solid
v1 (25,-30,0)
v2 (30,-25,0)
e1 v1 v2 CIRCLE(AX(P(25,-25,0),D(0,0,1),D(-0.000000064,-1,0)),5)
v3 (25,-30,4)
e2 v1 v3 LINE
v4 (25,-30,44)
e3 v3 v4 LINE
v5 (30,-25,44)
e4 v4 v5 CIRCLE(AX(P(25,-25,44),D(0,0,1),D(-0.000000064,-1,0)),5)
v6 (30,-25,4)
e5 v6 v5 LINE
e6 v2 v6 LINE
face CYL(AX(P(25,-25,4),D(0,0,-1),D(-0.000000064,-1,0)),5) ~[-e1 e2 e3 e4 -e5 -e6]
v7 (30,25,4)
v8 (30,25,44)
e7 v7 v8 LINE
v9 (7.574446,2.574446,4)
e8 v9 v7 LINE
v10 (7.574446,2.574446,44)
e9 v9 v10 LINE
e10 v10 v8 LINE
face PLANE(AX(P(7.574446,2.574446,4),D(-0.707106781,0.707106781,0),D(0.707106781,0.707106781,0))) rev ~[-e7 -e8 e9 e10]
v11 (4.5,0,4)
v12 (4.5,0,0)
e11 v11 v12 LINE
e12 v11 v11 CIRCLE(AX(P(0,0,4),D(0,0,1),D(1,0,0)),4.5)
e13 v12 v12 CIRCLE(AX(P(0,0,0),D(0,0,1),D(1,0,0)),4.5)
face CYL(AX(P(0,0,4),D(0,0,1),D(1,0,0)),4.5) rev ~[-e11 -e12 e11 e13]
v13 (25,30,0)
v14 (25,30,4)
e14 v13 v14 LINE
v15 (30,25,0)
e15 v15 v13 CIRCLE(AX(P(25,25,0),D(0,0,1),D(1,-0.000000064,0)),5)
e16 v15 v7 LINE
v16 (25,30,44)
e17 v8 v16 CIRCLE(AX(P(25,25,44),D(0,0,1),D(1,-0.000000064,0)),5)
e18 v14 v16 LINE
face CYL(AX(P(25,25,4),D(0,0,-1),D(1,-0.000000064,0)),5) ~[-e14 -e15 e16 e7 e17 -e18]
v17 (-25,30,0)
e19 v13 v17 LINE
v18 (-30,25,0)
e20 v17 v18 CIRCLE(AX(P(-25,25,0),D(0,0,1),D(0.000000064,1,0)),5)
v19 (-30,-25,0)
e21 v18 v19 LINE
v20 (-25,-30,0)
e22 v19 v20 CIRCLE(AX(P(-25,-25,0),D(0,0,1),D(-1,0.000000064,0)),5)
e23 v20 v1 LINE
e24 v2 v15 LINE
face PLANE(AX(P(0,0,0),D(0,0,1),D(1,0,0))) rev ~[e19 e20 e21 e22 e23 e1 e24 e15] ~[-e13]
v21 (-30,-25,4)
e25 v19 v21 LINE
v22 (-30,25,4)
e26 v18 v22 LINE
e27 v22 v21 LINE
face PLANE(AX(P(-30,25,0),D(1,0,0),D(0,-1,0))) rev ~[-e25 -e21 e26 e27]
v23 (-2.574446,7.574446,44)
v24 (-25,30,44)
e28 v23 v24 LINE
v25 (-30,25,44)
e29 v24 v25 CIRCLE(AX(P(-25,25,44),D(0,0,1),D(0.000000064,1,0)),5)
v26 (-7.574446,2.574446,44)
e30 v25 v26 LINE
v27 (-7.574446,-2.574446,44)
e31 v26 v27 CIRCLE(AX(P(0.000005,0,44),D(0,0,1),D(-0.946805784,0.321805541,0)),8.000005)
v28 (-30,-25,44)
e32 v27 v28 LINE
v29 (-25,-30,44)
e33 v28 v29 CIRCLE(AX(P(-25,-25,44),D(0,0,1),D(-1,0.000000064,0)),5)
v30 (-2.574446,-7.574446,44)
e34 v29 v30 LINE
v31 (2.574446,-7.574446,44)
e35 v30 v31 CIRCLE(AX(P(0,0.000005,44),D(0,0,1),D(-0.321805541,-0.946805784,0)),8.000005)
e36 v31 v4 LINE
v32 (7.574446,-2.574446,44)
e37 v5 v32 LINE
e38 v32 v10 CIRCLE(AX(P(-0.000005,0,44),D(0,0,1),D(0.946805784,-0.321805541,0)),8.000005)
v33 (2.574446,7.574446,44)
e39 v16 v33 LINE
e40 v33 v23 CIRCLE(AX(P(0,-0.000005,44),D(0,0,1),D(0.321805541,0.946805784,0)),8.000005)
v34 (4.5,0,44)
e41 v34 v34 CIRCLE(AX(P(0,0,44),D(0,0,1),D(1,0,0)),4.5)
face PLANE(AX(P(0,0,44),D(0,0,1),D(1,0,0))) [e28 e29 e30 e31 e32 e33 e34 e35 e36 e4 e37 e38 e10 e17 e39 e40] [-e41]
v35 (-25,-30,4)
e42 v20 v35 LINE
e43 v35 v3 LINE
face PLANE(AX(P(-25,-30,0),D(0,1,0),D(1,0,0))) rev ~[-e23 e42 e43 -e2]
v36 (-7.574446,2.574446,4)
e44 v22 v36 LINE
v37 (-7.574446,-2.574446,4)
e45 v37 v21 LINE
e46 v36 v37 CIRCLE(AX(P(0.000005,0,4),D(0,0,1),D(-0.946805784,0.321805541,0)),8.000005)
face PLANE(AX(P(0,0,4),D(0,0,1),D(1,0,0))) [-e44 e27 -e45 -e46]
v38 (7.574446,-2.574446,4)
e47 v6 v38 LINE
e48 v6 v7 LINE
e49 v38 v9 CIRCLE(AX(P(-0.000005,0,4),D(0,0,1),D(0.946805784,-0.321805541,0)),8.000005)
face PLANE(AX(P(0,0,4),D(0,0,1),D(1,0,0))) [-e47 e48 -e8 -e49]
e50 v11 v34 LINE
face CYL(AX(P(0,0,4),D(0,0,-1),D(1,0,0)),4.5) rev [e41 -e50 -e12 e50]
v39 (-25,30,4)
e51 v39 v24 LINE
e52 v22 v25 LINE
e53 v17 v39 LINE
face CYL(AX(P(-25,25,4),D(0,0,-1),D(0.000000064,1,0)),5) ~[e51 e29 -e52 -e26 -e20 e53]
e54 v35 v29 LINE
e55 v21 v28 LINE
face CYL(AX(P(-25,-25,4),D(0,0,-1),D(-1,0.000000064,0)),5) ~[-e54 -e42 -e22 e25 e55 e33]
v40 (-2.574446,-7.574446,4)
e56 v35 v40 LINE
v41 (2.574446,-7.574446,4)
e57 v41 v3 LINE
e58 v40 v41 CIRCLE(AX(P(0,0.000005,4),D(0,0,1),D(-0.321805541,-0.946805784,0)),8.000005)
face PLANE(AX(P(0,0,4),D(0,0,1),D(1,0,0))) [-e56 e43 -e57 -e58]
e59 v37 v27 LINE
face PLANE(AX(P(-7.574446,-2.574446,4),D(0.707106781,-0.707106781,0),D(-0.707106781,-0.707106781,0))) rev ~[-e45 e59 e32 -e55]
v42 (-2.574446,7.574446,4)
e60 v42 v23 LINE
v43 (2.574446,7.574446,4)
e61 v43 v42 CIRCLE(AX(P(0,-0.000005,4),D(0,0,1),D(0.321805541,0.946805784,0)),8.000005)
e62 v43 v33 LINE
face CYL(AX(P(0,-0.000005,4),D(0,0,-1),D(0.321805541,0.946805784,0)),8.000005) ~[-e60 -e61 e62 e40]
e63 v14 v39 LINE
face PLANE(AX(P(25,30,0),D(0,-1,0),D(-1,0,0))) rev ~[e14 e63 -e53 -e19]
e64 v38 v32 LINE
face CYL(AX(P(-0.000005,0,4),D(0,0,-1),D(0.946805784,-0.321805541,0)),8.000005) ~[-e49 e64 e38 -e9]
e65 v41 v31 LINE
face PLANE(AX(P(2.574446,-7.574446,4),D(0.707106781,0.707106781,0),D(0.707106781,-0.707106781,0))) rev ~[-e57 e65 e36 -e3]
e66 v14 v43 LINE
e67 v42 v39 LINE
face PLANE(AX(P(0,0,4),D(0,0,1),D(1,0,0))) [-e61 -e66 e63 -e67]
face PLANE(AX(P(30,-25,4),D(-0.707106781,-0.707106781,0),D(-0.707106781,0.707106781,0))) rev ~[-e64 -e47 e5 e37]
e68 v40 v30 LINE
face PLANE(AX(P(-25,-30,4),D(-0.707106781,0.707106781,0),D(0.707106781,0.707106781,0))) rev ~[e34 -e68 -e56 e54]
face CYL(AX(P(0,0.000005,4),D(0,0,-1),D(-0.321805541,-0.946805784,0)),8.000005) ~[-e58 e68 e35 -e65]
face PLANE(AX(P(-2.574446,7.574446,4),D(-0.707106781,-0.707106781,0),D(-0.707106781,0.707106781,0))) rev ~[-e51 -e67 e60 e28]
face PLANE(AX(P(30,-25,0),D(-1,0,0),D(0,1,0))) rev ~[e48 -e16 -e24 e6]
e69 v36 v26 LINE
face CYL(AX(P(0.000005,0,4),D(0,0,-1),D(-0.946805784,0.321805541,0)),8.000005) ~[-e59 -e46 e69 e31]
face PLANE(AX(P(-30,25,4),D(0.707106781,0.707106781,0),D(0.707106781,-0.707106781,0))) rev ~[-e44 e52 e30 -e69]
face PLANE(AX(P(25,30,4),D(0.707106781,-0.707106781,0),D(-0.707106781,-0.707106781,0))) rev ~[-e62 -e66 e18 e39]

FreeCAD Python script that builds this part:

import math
import FreeCAD as App
import Part
import Sketcher

V = App.Vector
Q = App.Units.Quantity

doc = App.newDocument("Part")
body = doc.addObject("PartDesign::Body", "Body")

# Sketch on XY plane
sketch1 = doc.addObject("Sketcher::SketchObject", "Sketch")
body.addObject(sketch1)
sketch1.AttachmentSupport = (doc.XY_Plane, [""])
sketch1.MapMode = "FlatFace"
sketch1.addGeometry(Part.LineSegment(V(-25, -30, 0), V(25, -30, 0)), False)
sketch1.addGeometry(Part.ArcOfCircle(Part.Circle(V(25, -25, 0), V(0, 0, 1), 5), math.radians(-90.000004), math.radians(0.000004)), False)
sketch1.addGeometry(Part.LineSegment(V(30, -25, 0), V(30, 25, 0)), False)
sketch1.addGeometry(Part.ArcOfCircle(Part.Circle(V(25, 25, 0), V(0, 0, 1), 5), math.radians(-0.000004), math.radians(90.000004)), False)
sketch1.addGeometry(Part.LineSegment(V(25, 30, 0), V(-25, 30, 0)), False)
sketch1.addGeometry(Part.ArcOfCircle(Part.Circle(V(-25, 25, 0), V(0, 0, 1), 5), math.radians(89.999996), math.radians(180.000004)), False)
sketch1.addGeometry(Part.LineSegment(V(-30, 25, 0), V(-30, -25, 0)), False)
sketch1.addGeometry(Part.ArcOfCircle(Part.Circle(V(-25, -25, 0), V(0, 0, 1), 5), math.radians(179.999996), math.radians(270.000004)), False)
sketch1.addConstraint(Sketcher.Constraint("Tangent", 0, 2, 1, 1))
sketch1.addConstraint(Sketcher.Constraint("Tangent", 1, 2, 2, 1))
sketch1.addConstraint(Sketcher.Constraint("Tangent", 2, 2, 3, 1))
sketch1.addConstraint(Sketcher.Constraint("Tangent", 3, 2, 4, 1))
sketch1.addConstraint(Sketcher.Constraint("Tangent", 4, 2, 5, 1))
sketch1.addConstraint(Sketcher.Constraint("Tangent", 5, 2, 6, 1))
sketch1.addConstraint(Sketcher.Constraint("Tangent", 6, 2, 7, 1))
sketch1.addConstraint(Sketcher.Constraint("Tangent", 7, 2, 0, 1))
sketch1.addConstraint(Sketcher.Constraint("Horizontal", 0))
sketch1.addConstraint(Sketcher.Constraint("Vertical", 2))
sketch1.addConstraint(Sketcher.Constraint("Horizontal", 4))
sketch1.addConstraint(Sketcher.Constraint("Vertical", 6))
sketch1.addConstraint(Sketcher.Constraint("Equal", 1, 3))
sketch1.addConstraint(Sketcher.Constraint("Equal", 3, 5))
sketch1.addConstraint(Sketcher.Constraint("Equal", 5, 7))
sketch1.addConstraint(Sketcher.Constraint("Symmetric", 1, 3, 5, 3, -1, 1))
sketch1.addConstraint(Sketcher.Constraint("Equal", 4, 2))
sketch1.addConstraint(Sketcher.Constraint("Radius", 1, Q("5 mm")))
sketch1.addConstraint(Sketcher.Constraint("DistanceX", 0, 1, 0, 2, Q("50 mm")))
pad1 = doc.addObject("PartDesign::Pad", "Pad")
body.addObject(pad1)
pad1.Profile = sketch1
pad1.Length = 4

# Sketch on XY plane
sketch2 = doc.addObject("Sketcher::SketchObject", "Sketch001")
body.addObject(sketch2)
sketch2.AttachmentSupport = (doc.XY_Plane, [""])
sketch2.MapMode = "FlatFace"
sketch2.AttachmentOffset = App.Placement(V(0, 0, 4), App.Rotation())
sketch2.addGeometry(Part.LineSegment(V(-30, 25, 0), V(-7.574446, 2.574446, 0)), False)
sketch2.addGeometry(Part.ArcOfCircle(Part.Circle(V(0.000005, 0, 0), V(0, 0, 1), 8.000005), math.radians(161.227848), math.radians(198.772152)), False)
sketch2.addGeometry(Part.LineSegment(V(-7.574446, -2.574446, 0), V(-30, -25, 0)), False)
sketch2.addGeometry(Part.ArcOfCircle(Part.Circle(V(-25, -25, 0), V(0, 0, 1), 5), math.radians(179.999996), math.radians(270.000004)), False)
sketch2.addGeometry(Part.LineSegment(V(-25, -30, 0), V(-2.574446, -7.574446, 0)), False)
sketch2.addGeometry(Part.ArcOfCircle(Part.Circle(V(0, 0.000005, 0), V(0, 0, 1), 8.000005), math.radians(-108.772152), math.radians(-71.227848)), False)
sketch2.addGeometry(Part.LineSegment(V(2.574446, -7.574446, 0), V(25, -30, 0)), False)
sketch2.addGeometry(Part.ArcOfCircle(Part.Circle(V(25, -25, 0), V(0, 0, 1), 5), math.radians(-90.000004), math.radians(0.000004)), False)
sketch2.addGeometry(Part.LineSegment(V(30, -25, 0), V(7.574446, -2.574446, 0)), False)
sketch2.addGeometry(Part.ArcOfCircle(Part.Circle(V(-0.000005, 0, 0), V(0, 0, 1), 8.000005), math.radians(-18.772152), math.radians(18.772152)), False)
sketch2.addGeometry(Part.LineSegment(V(7.574446, 2.574446, 0), V(30, 25, 0)), False)
sketch2.addGeometry(Part.ArcOfCircle(Part.Circle(V(25, 25, 0), V(0, 0, 1), 5), math.radians(-0.000004), math.radians(90.000004)), False)
sketch2.addGeometry(Part.LineSegment(V(25, 30, 0), V(2.574446, 7.574446, 0)), False)
sketch2.addGeometry(Part.ArcOfCircle(Part.Circle(V(0, -0.000005, 0), V(0, 0, 1), 8.000005), math.radians(71.227848), math.radians(108.772152)), False)
sketch2.addGeometry(Part.LineSegment(V(-2.574446, 7.574446, 0), V(-25, 30, 0)), False)
sketch2.addGeometry(Part.ArcOfCircle(Part.Circle(V(-25, 25, 0), V(0, 0, 1), 5), math.radians(89.999996), math.radians(180.000004)), False)
sketch2.addGeometry(Part.Circle(V(0, 0, 0), V(0, 0, 1), 4.5), False)
sketch2.addConstraint(Sketcher.Constraint("Coincident", 0, 2, 1, 1))
sketch2.addConstraint(Sketcher.Constraint("Coincident", 1, 2, 2, 1))
sketch2.addConstraint(Sketcher.Constraint("Coincident", 2, 2, 3, 1))
sketch2.addConstraint(Sketcher.Constraint("Coincident", 3, 2, 4, 1))
sketch2.addConstraint(Sketcher.Constraint("Coincident", 4, 2, 5, 1))
sketch2.addConstraint(Sketcher.Constraint("Coincident", 5, 2, 6, 1))
sketch2.addConstraint(Sketcher.Constraint("Coincident", 6, 2, 7, 1))
sketch2.addConstraint(Sketcher.Constraint("Coincident", 7, 2, 8, 1))
sketch2.addConstraint(Sketcher.Constraint("Coincident", 8, 2, 9, 1))
sketch2.addConstraint(Sketcher.Constraint("Coincident", 9, 2, 10, 1))
sketch2.addConstraint(Sketcher.Constraint("Coincident", 10, 2, 11, 1))
sketch2.addConstraint(Sketcher.Constraint("Coincident", 11, 2, 12, 1))
sketch2.addConstraint(Sketcher.Constraint("Coincident", 12, 2, 13, 1))
sketch2.addConstraint(Sketcher.Constraint("Coincident", 13, 2, 14, 1))
sketch2.addConstraint(Sketcher.Constraint("Coincident", 14, 2, 15, 1))
sketch2.addConstraint(Sketcher.Constraint("Coincident", 15, 2, 0, 1))
sketch2.addConstraint(Sketcher.Constraint("Coincident", 1, 3, -1, 1))
sketch2.addConstraint(Sketcher.Constraint("Coincident", 5, 3, -1, 1))
sketch2.addConstraint(Sketcher.Constraint("Coincident", 9, 3, -1, 1))
sketch2.addConstraint(Sketcher.Constraint("Coincident", 13, 3, -1, 1))
sketch2.addConstraint(Sketcher.Constraint("Coincident", 16, 3, -1, 1))
sketch2.addConstraint(Sketcher.Constraint("Equal", 1, 5))
sketch2.addConstraint(Sketcher.Constraint("Equal", 3, 7))
sketch2.addConstraint(Sketcher.Constraint("Equal", 5, 9))
sketch2.addConstraint(Sketcher.Constraint("Equal", 7, 11))
sketch2.addConstraint(Sketcher.Constraint("Equal", 9, 13))
sketch2.addConstraint(Sketcher.Constraint("Equal", 11, 15))
sketch2.addConstraint(Sketcher.Constraint("Symmetric", 3, 3, 11, 3, -1, 1))
sketch2.addConstraint(Sketcher.Constraint("Symmetric", 7, 3, 15, 3, -1, 1))
sketch2.addConstraint(Sketcher.Constraint("Symmetric", 3, 3, 7, 3, -2))
sketch2.addConstraint(Sketcher.Constraint("Perpendicular", 0, 2))
sketch2.addConstraint(Sketcher.Constraint("Parallel", 2, 4))
sketch2.addConstraint(Sketcher.Constraint("Perpendicular", 4, 6))
sketch2.addConstraint(Sketcher.Constraint("Parallel", 6, 8))
sketch2.addConstraint(Sketcher.Constraint("Perpendicular", 8, 10))
sketch2.addConstraint(Sketcher.Constraint("Parallel", 10, 12))
sketch2.addConstraint(Sketcher.Constraint("Perpendicular", 12, 14))
sketch2.addConstraint(Sketcher.Constraint("Horizontal", 7, 3, 2, 2))
sketch2.addConstraint(Sketcher.Constraint("Horizontal", 4, 2, 5, 2))
sketch2.addConstraint(Sketcher.Constraint("Horizontal", 2, 2, 7, 2))
sketch2.addConstraint(Sketcher.Constraint("Horizontal", 1, 2, 8, 2))
sketch2.addConstraint(Sketcher.Constraint("Horizontal", 0, 2, 9, 2))
sketch2.addConstraint(Sketcher.Constraint("Horizontal", 15, 3, 10, 2))
sketch2.addConstraint(Sketcher.Constraint("Horizontal", 12, 2, 13, 2))
sketch2.addConstraint(Sketcher.Constraint("Vertical", 15, 3, 3, 2))
sketch2.addConstraint(Sketcher.Constraint("Vertical", 6, 2, 11, 2))
sketch2.addConstraint(Sketcher.Constraint("Equal", 2, 4))
sketch2.addConstraint(Sketcher.Constraint("Diameter", 16, Q("9 mm")))
sketch2.addConstraint(Sketcher.Constraint("Radius", 3, Q("5 mm")))
sketch2.addConstraint(Sketcher.Constraint("DistanceX", 3, 3, -1, 1, Q("25 mm")))
sketch2.addConstraint(Sketcher.Constraint("Radius", 1, Q("8.000005 mm")))
pad2 = doc.addObject("PartDesign::Pad", "Pad001")
body.addObject(pad2)
pad2.Profile = sketch2
pad2.Length = 40

# Sketch on XY plane
sketch3 = doc.addObject("Sketcher::SketchObject", "Sketch002")
body.addObject(sketch3)
sketch3.AttachmentSupport = (doc.XY_Plane, [""])
sketch3.MapMode = "FlatFace"
sketch3.AttachmentOffset = App.Placement(V(0, 0, 4), App.Rotation())
sketch3.addGeometry(Part.Circle(V(0, 0, 0), V(0, 0, 1), 4.5), False)
sketch3.addConstraint(Sketcher.Constraint("Coincident", 0, 3, -1, 1))
sketch3.addConstraint(Sketcher.Constraint("Diameter", 0, Q("9 mm")))
pocket1 = doc.addObject("PartDesign::Pocket", "Pocket")
body.addObject(pocket1)
pocket1.Profile = sketch3
pocket1.Length = 25

doc.recompute()
